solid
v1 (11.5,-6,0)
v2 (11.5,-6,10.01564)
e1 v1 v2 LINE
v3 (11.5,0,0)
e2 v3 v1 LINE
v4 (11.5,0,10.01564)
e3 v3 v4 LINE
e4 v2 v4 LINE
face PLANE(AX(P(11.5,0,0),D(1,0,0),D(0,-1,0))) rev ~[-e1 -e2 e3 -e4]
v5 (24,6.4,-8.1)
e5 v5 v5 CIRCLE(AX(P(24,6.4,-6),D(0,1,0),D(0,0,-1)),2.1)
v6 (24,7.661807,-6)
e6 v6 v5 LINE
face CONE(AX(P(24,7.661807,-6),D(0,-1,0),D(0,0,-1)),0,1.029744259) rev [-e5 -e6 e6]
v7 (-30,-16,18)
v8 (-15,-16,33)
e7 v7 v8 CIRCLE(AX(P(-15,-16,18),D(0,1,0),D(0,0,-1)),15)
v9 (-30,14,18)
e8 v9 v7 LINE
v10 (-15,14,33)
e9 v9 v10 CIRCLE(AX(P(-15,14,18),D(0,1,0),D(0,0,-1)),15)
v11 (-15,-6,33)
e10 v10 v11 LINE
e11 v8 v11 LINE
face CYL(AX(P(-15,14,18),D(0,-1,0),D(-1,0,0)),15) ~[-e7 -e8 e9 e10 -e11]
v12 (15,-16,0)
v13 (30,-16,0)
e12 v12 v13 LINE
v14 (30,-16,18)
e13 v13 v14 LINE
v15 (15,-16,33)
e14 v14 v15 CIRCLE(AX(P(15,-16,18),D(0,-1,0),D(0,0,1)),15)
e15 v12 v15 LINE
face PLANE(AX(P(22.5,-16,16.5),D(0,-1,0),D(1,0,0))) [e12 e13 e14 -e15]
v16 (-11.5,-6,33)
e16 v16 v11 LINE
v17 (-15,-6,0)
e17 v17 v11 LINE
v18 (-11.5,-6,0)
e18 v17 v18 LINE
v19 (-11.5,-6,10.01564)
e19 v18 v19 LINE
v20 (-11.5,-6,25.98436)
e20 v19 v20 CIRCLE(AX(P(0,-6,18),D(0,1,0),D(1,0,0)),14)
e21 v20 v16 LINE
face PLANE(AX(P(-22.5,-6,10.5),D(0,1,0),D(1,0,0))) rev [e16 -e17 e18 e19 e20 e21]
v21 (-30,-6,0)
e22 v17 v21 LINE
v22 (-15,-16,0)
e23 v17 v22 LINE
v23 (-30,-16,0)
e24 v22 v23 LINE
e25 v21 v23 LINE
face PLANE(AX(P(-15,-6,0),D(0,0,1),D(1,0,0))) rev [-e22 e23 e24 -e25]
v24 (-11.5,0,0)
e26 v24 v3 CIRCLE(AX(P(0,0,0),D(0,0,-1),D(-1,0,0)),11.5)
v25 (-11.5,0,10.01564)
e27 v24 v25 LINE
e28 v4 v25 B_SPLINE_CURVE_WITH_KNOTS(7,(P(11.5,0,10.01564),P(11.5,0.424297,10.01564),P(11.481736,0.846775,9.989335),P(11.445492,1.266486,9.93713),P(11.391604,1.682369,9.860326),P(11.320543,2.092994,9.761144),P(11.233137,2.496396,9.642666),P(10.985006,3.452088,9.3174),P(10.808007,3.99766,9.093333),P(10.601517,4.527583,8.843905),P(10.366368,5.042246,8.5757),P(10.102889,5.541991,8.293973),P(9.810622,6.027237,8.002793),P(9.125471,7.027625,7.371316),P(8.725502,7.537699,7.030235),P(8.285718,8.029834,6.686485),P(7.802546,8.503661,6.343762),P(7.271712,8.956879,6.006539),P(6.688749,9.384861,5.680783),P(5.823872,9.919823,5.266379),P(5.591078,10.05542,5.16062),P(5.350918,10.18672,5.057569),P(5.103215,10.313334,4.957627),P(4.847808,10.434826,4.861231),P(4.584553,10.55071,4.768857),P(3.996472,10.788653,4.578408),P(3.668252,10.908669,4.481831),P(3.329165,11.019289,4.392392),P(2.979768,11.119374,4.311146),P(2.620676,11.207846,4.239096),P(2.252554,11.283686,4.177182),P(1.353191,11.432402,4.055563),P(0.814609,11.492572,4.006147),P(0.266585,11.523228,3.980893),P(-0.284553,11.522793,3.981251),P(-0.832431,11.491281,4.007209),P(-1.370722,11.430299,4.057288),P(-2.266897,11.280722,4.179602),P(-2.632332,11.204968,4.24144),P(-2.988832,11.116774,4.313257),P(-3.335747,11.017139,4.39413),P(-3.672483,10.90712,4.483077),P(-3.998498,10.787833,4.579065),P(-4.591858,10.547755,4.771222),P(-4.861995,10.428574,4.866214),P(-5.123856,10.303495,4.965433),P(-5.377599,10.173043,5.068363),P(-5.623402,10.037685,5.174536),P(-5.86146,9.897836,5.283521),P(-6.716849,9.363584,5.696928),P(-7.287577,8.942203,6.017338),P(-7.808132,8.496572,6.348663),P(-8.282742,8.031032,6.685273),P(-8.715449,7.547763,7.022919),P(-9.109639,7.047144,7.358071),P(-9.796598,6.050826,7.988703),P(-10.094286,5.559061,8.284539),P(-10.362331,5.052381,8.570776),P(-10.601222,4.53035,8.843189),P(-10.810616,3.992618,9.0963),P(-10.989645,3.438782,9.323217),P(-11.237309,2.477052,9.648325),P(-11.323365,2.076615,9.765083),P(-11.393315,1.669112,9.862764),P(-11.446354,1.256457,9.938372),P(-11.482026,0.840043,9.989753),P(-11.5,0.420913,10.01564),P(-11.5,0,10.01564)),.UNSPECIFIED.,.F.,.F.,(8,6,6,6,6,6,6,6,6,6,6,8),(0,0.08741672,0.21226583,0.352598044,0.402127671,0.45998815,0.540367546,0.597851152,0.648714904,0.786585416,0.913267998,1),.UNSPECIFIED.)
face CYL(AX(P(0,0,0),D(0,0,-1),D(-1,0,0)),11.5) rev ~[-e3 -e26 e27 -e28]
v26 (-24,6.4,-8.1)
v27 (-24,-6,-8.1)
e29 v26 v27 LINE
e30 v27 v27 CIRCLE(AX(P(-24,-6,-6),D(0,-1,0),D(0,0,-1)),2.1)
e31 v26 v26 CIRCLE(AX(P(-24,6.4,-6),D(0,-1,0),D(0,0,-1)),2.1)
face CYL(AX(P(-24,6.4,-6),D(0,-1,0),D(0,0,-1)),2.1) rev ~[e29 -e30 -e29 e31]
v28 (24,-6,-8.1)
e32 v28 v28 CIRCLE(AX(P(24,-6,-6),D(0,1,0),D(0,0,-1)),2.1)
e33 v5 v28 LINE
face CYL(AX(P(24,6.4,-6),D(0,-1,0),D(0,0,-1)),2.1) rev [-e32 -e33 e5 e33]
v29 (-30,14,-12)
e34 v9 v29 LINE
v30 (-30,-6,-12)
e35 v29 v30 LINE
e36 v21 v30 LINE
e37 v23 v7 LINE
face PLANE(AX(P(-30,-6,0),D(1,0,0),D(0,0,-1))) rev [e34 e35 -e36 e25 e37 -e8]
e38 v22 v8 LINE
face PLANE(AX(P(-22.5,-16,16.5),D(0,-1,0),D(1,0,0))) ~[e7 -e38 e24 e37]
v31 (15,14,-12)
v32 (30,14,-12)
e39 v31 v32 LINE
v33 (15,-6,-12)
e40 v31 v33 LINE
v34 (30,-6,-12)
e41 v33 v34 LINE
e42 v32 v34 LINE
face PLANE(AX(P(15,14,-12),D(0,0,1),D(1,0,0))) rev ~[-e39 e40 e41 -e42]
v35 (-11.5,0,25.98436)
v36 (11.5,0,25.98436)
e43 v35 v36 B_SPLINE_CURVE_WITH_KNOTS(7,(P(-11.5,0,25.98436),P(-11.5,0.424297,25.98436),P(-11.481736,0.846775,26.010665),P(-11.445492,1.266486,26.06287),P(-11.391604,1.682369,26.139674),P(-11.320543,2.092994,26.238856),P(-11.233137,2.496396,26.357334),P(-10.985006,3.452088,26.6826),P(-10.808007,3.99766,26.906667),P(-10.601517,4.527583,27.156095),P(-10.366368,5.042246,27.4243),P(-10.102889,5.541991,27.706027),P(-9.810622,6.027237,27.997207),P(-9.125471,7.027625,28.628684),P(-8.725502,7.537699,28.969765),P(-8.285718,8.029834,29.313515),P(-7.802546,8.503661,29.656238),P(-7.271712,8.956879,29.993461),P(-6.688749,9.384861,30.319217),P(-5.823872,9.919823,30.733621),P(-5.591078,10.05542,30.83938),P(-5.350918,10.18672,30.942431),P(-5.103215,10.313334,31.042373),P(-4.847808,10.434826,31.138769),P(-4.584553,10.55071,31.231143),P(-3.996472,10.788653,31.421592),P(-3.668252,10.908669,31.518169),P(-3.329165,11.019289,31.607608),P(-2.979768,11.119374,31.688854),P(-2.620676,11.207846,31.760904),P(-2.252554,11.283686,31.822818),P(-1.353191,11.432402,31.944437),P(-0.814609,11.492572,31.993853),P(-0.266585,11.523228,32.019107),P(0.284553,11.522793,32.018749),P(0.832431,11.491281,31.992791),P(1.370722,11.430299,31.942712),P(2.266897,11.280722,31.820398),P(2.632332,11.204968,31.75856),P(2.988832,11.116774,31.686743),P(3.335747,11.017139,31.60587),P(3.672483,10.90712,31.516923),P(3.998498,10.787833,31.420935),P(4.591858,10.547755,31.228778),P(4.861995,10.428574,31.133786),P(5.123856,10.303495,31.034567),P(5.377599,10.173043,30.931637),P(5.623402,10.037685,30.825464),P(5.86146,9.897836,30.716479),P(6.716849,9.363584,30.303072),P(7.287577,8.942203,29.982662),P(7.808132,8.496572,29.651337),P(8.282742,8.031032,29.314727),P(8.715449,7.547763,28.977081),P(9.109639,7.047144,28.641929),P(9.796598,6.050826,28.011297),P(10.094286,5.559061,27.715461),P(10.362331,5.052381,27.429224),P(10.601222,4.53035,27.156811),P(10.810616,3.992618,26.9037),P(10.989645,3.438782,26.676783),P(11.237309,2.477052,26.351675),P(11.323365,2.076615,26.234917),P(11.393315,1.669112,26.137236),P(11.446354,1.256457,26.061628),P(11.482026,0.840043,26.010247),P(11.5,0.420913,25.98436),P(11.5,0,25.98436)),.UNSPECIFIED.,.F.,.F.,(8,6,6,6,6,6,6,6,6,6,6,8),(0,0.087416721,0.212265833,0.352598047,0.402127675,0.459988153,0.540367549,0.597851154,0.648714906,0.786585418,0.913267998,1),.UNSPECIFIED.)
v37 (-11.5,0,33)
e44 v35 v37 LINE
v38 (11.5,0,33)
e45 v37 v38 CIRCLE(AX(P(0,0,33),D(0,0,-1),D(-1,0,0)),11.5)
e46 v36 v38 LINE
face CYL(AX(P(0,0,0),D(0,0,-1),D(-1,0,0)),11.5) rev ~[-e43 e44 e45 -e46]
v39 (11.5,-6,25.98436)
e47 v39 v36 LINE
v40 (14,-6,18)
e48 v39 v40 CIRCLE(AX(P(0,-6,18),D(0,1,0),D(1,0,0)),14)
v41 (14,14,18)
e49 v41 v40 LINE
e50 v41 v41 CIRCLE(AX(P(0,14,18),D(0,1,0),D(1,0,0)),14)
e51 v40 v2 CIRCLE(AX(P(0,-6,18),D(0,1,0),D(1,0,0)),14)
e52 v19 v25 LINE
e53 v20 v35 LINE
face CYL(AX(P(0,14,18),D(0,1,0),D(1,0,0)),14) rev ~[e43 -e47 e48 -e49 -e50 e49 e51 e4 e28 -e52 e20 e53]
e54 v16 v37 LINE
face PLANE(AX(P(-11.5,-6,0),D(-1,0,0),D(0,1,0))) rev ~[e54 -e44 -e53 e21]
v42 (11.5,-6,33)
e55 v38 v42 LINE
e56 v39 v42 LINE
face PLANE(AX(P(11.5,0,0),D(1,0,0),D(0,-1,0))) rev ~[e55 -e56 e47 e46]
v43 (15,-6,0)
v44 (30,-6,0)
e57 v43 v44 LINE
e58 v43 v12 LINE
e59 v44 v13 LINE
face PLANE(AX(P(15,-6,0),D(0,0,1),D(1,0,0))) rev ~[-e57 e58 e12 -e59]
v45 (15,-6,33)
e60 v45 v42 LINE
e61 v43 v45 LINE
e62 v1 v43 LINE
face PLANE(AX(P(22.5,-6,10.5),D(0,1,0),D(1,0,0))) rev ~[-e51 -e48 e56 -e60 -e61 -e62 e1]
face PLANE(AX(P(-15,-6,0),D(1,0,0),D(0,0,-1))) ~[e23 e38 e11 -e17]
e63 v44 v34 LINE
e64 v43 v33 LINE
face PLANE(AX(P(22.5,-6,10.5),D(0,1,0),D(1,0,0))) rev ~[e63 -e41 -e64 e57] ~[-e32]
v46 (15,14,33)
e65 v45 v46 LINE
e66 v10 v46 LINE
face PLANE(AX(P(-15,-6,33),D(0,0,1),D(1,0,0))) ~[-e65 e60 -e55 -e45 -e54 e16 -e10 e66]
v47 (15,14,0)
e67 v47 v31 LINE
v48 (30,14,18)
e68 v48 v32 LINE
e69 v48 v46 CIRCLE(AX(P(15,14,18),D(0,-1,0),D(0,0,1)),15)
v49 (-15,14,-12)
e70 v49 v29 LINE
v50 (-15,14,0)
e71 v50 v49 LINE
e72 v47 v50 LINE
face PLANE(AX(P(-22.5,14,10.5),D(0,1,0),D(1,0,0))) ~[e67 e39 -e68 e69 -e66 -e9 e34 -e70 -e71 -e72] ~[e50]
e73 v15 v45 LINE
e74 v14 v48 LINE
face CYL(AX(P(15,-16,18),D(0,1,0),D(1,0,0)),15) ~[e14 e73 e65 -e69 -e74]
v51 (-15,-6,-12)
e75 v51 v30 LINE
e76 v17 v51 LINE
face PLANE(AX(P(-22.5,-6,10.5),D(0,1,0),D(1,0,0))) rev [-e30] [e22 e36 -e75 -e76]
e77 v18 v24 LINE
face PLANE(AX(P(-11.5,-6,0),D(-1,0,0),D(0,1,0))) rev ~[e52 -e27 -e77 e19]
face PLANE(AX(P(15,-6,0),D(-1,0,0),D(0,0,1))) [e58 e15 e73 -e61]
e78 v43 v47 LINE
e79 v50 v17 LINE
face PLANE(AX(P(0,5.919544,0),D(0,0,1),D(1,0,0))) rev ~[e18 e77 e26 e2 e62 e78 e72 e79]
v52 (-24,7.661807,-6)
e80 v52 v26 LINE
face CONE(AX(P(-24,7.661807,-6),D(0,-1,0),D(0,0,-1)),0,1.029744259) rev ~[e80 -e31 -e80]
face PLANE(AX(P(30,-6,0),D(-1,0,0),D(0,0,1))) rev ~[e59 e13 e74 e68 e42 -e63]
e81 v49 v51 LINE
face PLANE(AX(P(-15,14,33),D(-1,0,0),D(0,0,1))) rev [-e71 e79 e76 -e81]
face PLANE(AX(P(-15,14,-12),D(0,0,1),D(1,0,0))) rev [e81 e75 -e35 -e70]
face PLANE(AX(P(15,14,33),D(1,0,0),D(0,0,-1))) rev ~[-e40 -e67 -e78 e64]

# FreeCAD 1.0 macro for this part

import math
import FreeCAD as App
import Part
import Sketcher
from FreeCAD import Vector
Q = App.Units.Quantity


def edges_at(feature, points):
    """Names of the edges that pass closest to the given points."""
    edges = feature.Shape.Edges
    near = lambda p: min(range(len(edges)), key=lambda i: edges[i].distToShape(Part.Vertex(*p))[0])
    return sorted({f"Edge{near(p) + 1}" for p in points})

doc = App.newDocument("Part")
params = doc.addObject("Spreadsheet::Sheet", "Params")
for row, (alias, value) in enumerate([
    ("sketch1_radius", "11.5 mm"),
    ("sketch1_width", "30 mm"),
    ("sketch1_height", "6 mm"),
    ("sketch1_height2", "20 mm"),
    ("pad1_length", "33 mm"),
    ("sketch2_diameter", "28 mm"),
    ("sketch3_width", "15 mm"),
    ("sketch3_height", "45 mm"),
    ("pad2_length", "20 mm"),
    ("sketch4_width", "12.4 mm"),
    ("sketch4_height", "2.1 mm"),
    ("groove_angle", "360 deg"),
    ("sketch5_width", "15 mm"),
    ("sketch5_height", "33 mm"),
    ("pad3_length", "10 mm"),
    ("fillet_radius", "15 mm"),
], start=1):
    params.set(f"A{row}", alias)
    params.set(f"B{row}", "=" + value)
    params.setAlias(f"B{row}", alias)

body = doc.addObject("PartDesign::Body", "Body")

sketch1 = doc.addObject("Sketcher::SketchObject", "Sketch")
body.addObject(sketch1)
sketch1.AttachmentSupport = (doc.XY_Plane, [""])
sketch1.MapMode = "FlatFace"
sketch1.addGeometry([
    Part.LineSegment(Vector(11.5, 0, 0), Vector(11.5, -6, 0)),
    Part.LineSegment(Vector(11.5, -6, 0), Vector(15, -6, 0)),
    Part.LineSegment(Vector(15, -6, 0), Vector(15, 14, 0)),
    Part.LineSegment(Vector(15, 14, 0), Vector(-15, 14, 0)),
    Part.LineSegment(Vector(-15, 14, 0), Vector(-15, -6, 0)),
    Part.LineSegment(Vector(-15, -6, 0), Vector(-11.5, -6, 0)),
    Part.LineSegment(Vector(-11.5, -6, 0), Vector(-11.5, 0, 0)),
    Part.ArcOfCircle(Part.Circle(Vector(0, 0, 0), Vector(0, 0, 1), 11.5), math.radians(0), math.radians(180)),
], False)
sketch1.addConstraint([
    Sketcher.Constraint("Coincident", 0, 2, 1, 1),
    Sketcher.Constraint("Coincident", 1, 2, 2, 1),
    Sketcher.Constraint("Coincident", 2, 2, 3, 1),
    Sketcher.Constraint("Coincident", 3, 2, 4, 1),
    Sketcher.Constraint("Coincident", 4, 2, 5, 1),
    Sketcher.Constraint("Coincident", 5, 2, 6, 1),
    Sketcher.Constraint("Tangent", 6, 2, 7, 2),
    Sketcher.Constraint("Tangent", 7, 1, 0, 1),
    Sketcher.Constraint("Vertical", 0),
    Sketcher.Constraint("Horizontal", 1),
    Sketcher.Constraint("Vertical", 2),
    Sketcher.Constraint("Horizontal", 3),
    Sketcher.Constraint("Vertical", 4),
    Sketcher.Constraint("Horizontal", 5),
    Sketcher.Constraint("Vertical", 6),
    Sketcher.Constraint("Coincident", 7, 3, -1, 1),
    Sketcher.Constraint("Symmetric", 1, 2, 4, 2, -2),
    Sketcher.Constraint("Radius", 7, Q("11.5 mm")),
    Sketcher.Constraint("DistanceX", 3, 2, 3, 1, Q("30 mm")),
    Sketcher.Constraint("DistanceY", 0, 2, 0, 1, Q("6 mm")),
    Sketcher.Constraint("DistanceY", 2, 1, 2, 2, Q("20 mm")),
])
sketch1.setExpression("Constraints[17]", "Params.sketch1_radius")
sketch1.setExpression("Constraints[18]", "Params.sketch1_width")
sketch1.setExpression("Constraints[19]", "Params.sketch1_height")
sketch1.setExpression("Constraints[20]", "Params.sketch1_height2")
pad1 = doc.addObject("PartDesign::Pad", "Pad")
body.addObject(pad1)
pad1.Profile = sketch1
pad1.setExpression("Length", "Params.pad1_length")

sketch2 = doc.addObject("Sketcher::SketchObject", "Sketch001")
body.addObject(sketch2)
sketch2.AttachmentSupport = (doc.XZ_Plane, [""])
sketch2.MapMode = "FlatFace"
sketch2.AttachmentOffset = App.Placement(Vector(0, 0, -14), App.Rotation())
sketch2.addGeometry(Part.Circle(Vector(0, 18, 0), Vector(0, 0, 1), 14), False)
sketch2.addConstraint([
    Sketcher.Constraint("PointOnObject", 0, 3, -2),
    Sketcher.Constraint("Diameter", 0, Q("28 mm")),
    Sketcher.Constraint("DistanceY", -1, 1, 0, 3, Q("18 mm")),
])
sketch2.setExpression("Constraints[1]", "Params.sketch2_diameter")
pocket1 = doc.addObject("PartDesign::Pocket", "Pocket")
body.addObject(pocket1)
pocket1.Profile = sketch2
pocket1.Type = "ThroughAll"
pocket1.Reversed = True

sketch3 = doc.addObject("Sketcher::SketchObject", "Sketch002")
body.addObject(sketch3)
sketch3.AttachmentSupport = (doc.XZ_Plane, [""])
sketch3.MapMode = "FlatFace"
sketch3.AttachmentOffset = App.Placement(Vector(0, 0, -14), App.Rotation())
sketch3.addGeometry([
    Part.LineSegment(Vector(15, -12, 0), Vector(15, 33, 0)),
    Part.LineSegment(Vector(15, 33, 0), Vector(30, 33, 0)),
    Part.LineSegment(Vector(30, 33, 0), Vector(30, -12, 0)),
    Part.LineSegment(Vector(30, -12, 0), Vector(15, -12, 0)),
], False)
sketch3.addConstraint([
    Sketcher.Constraint("Coincident", 0, 2, 1, 1),
    Sketcher.Constraint("Coincident", 1, 2, 2, 1),
    Sketcher.Constraint("Coincident", 2, 2, 3, 1),
    Sketcher.Constraint("Coincident", 3, 2, 0, 1),
    Sketcher.Constraint("Vertical", 0),
    Sketcher.Constraint("Horizontal", 1),
    Sketcher.Constraint("Vertical", 2),
    Sketcher.Constraint("Horizontal", 3),
    Sketcher.Constraint("DistanceX", 1, 1, 1, 2, Q("15 mm")),
    Sketcher.Constraint("DistanceY", 0, 1, 0, 2, Q("45 mm")),
    Sketcher.Constraint("DistanceX", -1, 1, 0, 2, Q("15 mm")),
    Sketcher.Constraint("DistanceY", -1, 1, 0, 2, Q("33 mm")),
])
sketch3.setExpression("Constraints[8]", "Params.sketch3_width")
sketch3.setExpression("Constraints[9]", "Params.sketch3_height")
pad2 = doc.addObject("PartDesign::Pad", "Pad001")
body.addObject(pad2)
pad2.Profile = sketch3
pad2.setExpression("Length", "Params.pad2_length")

sketch4 = doc.addObject("Sketcher::SketchObject", "Sketch003")
body.addObject(sketch4)
sketch4.AttachmentSupport = (doc.YZ_Plane, [""])
sketch4.MapMode = "FlatFace"
sketch4.AttachmentOffset = App.Placement(Vector(0, 0, 24), App.Rotation())
sketch4.addGeometry([
    Part.LineSegment(Vector(7.661807, -6, 0), Vector(-6, -6, 0)),
    Part.LineSegment(Vector(-6, -6, 0), Vector(-6, -8.1, 0)),
    Part.LineSegment(Vector(-6, -8.1, 0), Vector(6.4, -8.1, 0)),
    Part.LineSegment(Vector(6.4, -8.1, 0), Vector(7.661807, -6, 0)),
], False)
sketch4.addGeometry(Part.LineSegment(Vector(-6, -6, 0), Vector(7.661807, -6, 0)), True)
sketch4.addConstraint([
    Sketcher.Constraint("Coincident", 0, 2, 1, 1),
    Sketcher.Constraint("Coincident", 1, 2, 2, 1),
    Sketcher.Constraint("Coincident", 2, 2, 3, 1),
    Sketcher.Constraint("Coincident", 3, 2, 0, 1),
    Sketcher.Constraint("Horizontal", 0),
    Sketcher.Constraint("Vertical", 1),
    Sketcher.Constraint("Horizontal", 2),
    Sketcher.Constraint("Horizontal", 4),
    Sketcher.Constraint("Coincident", 4, 1, 0, 2),
    Sketcher.Constraint("Equal", 0, 4),
    Sketcher.Constraint("Angle", 3, Q("59 deg")),
    Sketcher.Constraint("DistanceX", 2, 1, 2, 2, Q("12.4 mm")),
    Sketcher.Constraint("DistanceY", 1, 2, 1, 1, Q("2.1 mm")),
    Sketcher.Constraint("DistanceX", 0, 2, -1, 1, Q("6 mm")),
    Sketcher.Constraint("DistanceY", 0, 2, -1, 1, Q("6 mm")),
])
sketch4.setExpression("Constraints[11]", "Params.sketch4_width")
sketch4.setExpression("Constraints[12]", "Params.sketch4_height")
groove = doc.addObject("PartDesign::Groove", "Groove")
body.addObject(groove)
groove.Profile = sketch4
groove.ReferenceAxis = (sketch4, ["Axis0"])
groove.setExpression("Angle", "Params.groove_angle")

sketch5 = doc.addObject("Sketcher::SketchObject", "Sketch004")
body.addObject(sketch5)
sketch5.AttachmentSupport = (doc.XZ_Plane, [""])
sketch5.MapMode = "FlatFace"
sketch5.AttachmentOffset = App.Placement(Vector(0, 0, 6), App.Rotation())
sketch5.addGeometry([
    Part.LineSegment(Vector(15, 33, 0), Vector(15, 0, 0)),
    Part.LineSegment(Vector(15, 0, 0), Vector(30, 0, 0)),
    Part.LineSegment(Vector(30, 0, 0), Vector(30, 33, 0)),
    Part.LineSegment(Vector(30, 33, 0), Vector(15, 33, 0)),
], False)
sketch5.addConstraint([
    Sketcher.Constraint("Coincident", 0, 2, 1, 1),
    Sketcher.Constraint("Coincident", 1, 2, 2, 1),
    Sketcher.Constraint("Coincident", 2, 2, 3, 1),
    Sketcher.Constraint("Coincident", 3, 2, 0, 1),
    Sketcher.Constraint("Vertical", 0),
    Sketcher.Constraint("Horizontal", 1),
    Sketcher.Constraint("Vertical", 2),
    Sketcher.Constraint("Horizontal", 3),
    Sketcher.Constraint("PointOnObject", 0, 2, -1),
    Sketcher.Constraint("DistanceX", 1, 1, 1, 2, Q("15 mm")),
    Sketcher.Constraint("DistanceY", 0, 2, 0, 1, Q("33 mm")),
    Sketcher.Constraint("DistanceX", -1, 1, 0, 2, Q("15 mm")),
])
sketch5.setExpression("Constraints[9]", "Params.sketch5_width")
sketch5.setExpression("Constraints[10]", "Params.sketch5_height")
pad3 = doc.addObject("PartDesign::Pad", "Pad002")
body.addObject(pad3)
pad3.Profile = sketch5
pad3.setExpression("Length", "Params.pad3_length")
doc.recompute()

mirrored = doc.addObject("PartDesign::Mirrored", "Mirrored")
body.addObject(mirrored)
mirrored.Originals = [pad2, groove, pad3]
mirrored.MirrorPlane = (doc.YZ_Plane, [""])
body.Tip = mirrored
doc.recompute()

fillet = doc.addObject("PartDesign::Fillet", "Fillet")
body.addObject(fillet)
fillet.Base = (mirrored, edges_at(mirrored, [(30, -1, 33), (-30, -1, 33)]))
fillet.setExpression("Radius", "Params.fillet_radius")

doc.recompute()
